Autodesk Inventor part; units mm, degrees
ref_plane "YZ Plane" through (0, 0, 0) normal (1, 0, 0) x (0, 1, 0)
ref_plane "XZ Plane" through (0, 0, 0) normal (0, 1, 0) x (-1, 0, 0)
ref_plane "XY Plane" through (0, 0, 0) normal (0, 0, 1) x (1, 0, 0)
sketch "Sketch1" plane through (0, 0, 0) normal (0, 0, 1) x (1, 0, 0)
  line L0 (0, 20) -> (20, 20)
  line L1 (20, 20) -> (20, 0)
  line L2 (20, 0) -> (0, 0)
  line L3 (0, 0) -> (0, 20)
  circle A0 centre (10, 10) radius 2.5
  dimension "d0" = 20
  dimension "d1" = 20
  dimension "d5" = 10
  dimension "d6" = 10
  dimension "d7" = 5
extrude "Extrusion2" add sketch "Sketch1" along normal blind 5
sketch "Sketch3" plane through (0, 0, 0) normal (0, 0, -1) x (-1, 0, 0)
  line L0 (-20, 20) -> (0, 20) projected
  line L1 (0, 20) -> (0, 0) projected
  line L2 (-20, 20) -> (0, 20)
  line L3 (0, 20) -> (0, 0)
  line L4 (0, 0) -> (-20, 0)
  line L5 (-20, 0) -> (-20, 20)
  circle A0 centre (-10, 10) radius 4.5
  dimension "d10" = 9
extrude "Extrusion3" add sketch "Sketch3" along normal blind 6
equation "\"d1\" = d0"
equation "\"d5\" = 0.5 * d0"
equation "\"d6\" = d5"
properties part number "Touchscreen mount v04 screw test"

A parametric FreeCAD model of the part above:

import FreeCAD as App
import Part
import Sketcher
Q = App.Units.Quantity

doc = App.newDocument("Part")
body = doc.addObject("PartDesign::Body", "Body")

# Sketch on XY plane
sketch1 = doc.addObject("Sketcher::SketchObject", "Sketch")
body.addObject(sketch1)
sketch1.AttachmentSupport = (doc.XY_Plane, [""])
sketch1.MapMode = "FlatFace"
sketch1.addGeometry([
    Part.LineSegment(App.Vector(20, 20, 0), App.Vector(0, 20, 0)),  # 0
    Part.LineSegment(App.Vector(0, 20, 0), App.Vector(0, 0, 0)),  # 1
    Part.LineSegment(App.Vector(0, 0, 0), App.Vector(20, 0, 0)),  # 2
    Part.LineSegment(App.Vector(20, 0, 0), App.Vector(20, 20, 0)),  # 3
    Part.Circle(App.Vector(10, 10, 0), App.Vector(0, 0, 1), 2.5),  # 4
], False)
sketch1.addConstraint([
    Sketcher.Constraint("Coincident", 0, 2, 1, 1),
    Sketcher.Constraint("Coincident", 1, 2, 2, 1),
    Sketcher.Constraint("Coincident", 2, 2, 3, 1),
    Sketcher.Constraint("Coincident", 3, 2, 0, 1),
    Sketcher.Constraint("Horizontal", 0),
    Sketcher.Constraint("Vertical", 1),
    Sketcher.Constraint("Horizontal", 2),
    Sketcher.Constraint("Vertical", 3),
    Sketcher.Constraint("Coincident", 1, 2, -1, 1),
    Sketcher.Constraint("Equal", 2, 1),
    Sketcher.Constraint("Diameter", 4, Q("5 mm")),
    Sketcher.Constraint("DistanceX", 0, 2, 0, 1, Q("20 mm")),
    Sketcher.Constraint("DistanceX", -1, 1, 4, 3, Q("10 mm")),
    Sketcher.Constraint("DistanceY", -1, 1, 4, 3, Q("10 mm")),
])
pad1 = doc.addObject("PartDesign::Pad", "Pad")
body.addObject(pad1)
pad1.Profile = sketch1
pad1.Length = 5

# Sketch on XY plane
sketch2 = doc.addObject("Sketcher::SketchObject", "Sketch001")
body.addObject(sketch2)
sketch2.AttachmentSupport = (doc.XY_Plane, [""])
sketch2.MapMode = "FlatFace"
sketch2.addGeometry([
    Part.LineSegment(App.Vector(0, 20, 0), App.Vector(20, 20, 0)),  # 0
    Part.LineSegment(App.Vector(20, 20, 0), App.Vector(20, 0, 0)),  # 1
    Part.LineSegment(App.Vector(20, 0, 0), App.Vector(0, 0, 0)),  # 2
    Part.LineSegment(App.Vector(0, 0, 0), App.Vector(0, 20, 0)),  # 3
    Part.Circle(App.Vector(10, 10, 0), App.Vector(0, 0, 1), 4.5),  # 4
], False)
sketch2.addConstraint([
    Sketcher.Constraint("Coincident", 0, 2, 1, 1),
    Sketcher.Constraint("Coincident", 1, 2, 2, 1),
    Sketcher.Constraint("Coincident", 2, 2, 3, 1),
    Sketcher.Constraint("Coincident", 3, 2, 0, 1),
    Sketcher.Constraint("Horizontal", 0),
    Sketcher.Constraint("Vertical", 1),
    Sketcher.Constraint("Horizontal", 2),
    Sketcher.Constraint("Vertical", 3),
    Sketcher.Constraint("Coincident", 2, 2, -1, 1),
    Sketcher.Constraint("Equal", 2, 1),
    Sketcher.Constraint("Diameter", 4, Q("9 mm")),
    Sketcher.Constraint("DistanceX", 0, 1, 0, 2, Q("20 mm")),
    Sketcher.Constraint("DistanceX", -1, 1, 4, 3, Q("10 mm")),
    Sketcher.Constraint("DistanceY", -1, 1, 4, 3, Q("10 mm")),
])
pad2 = doc.addObject("PartDesign::Pad", "Pad001")
body.addObject(pad2)
pad2.Profile = sketch2
pad2.Length = 6
pad2.Reversed = True

doc.recompute()
